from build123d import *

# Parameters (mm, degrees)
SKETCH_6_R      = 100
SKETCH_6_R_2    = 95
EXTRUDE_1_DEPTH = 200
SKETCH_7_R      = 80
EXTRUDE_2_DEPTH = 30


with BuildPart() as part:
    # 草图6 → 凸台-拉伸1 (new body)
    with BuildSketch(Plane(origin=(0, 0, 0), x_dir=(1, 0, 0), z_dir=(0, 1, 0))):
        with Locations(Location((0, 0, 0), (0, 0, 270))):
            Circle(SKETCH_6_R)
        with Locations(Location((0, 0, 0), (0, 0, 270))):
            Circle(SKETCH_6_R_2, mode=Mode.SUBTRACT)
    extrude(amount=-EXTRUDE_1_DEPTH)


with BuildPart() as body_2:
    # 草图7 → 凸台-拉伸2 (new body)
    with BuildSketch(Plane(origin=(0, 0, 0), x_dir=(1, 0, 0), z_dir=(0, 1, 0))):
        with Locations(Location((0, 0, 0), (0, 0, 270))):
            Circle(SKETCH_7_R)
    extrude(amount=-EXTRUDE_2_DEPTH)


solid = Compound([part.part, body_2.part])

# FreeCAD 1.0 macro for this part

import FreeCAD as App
import Part
import Sketcher
from FreeCAD import Vector
Q = App.Units.Quantity

doc = App.newDocument("Part")
params = doc.addObject("Spreadsheet::Sheet", "Params")
for row, (alias, value) in enumerate([
    ("sketch1_diameter", "200 mm"),
    ("sketch1_diameter2", "190 mm"),
    ("pad1_length", "200 mm"),
    ("sketch2_diameter", "160 mm"),
    ("pad2_length", "30 mm"),
], start=1):
    params.set(f"A{row}", alias)
    params.set(f"B{row}", "=" + value)
    params.setAlias(f"B{row}", alias)

body = doc.addObject("PartDesign::Body", "Body")

sketch1 = doc.addObject("Sketcher::SketchObject", "Sketch")
body.addObject(sketch1)
sketch1.AttachmentSupport = (doc.XZ_Plane, [""])
sketch1.MapMode = "FlatFace"
sketch1.addGeometry([
    Part.Circle(Vector(0, 0, 0), Vector(0, 0, 1), 100),
    Part.Circle(Vector(0, 0, 0), Vector(0, 0, 1), 95),
], False)
sketch1.addConstraint([
    Sketcher.Constraint("Coincident", 0, 3, -1, 1),
    Sketcher.Constraint("Coincident", 1, 3, -1, 1),
    Sketcher.Constraint("Diameter", 0, Q("200 mm")),
    Sketcher.Constraint("Diameter", 1, Q("190 mm")),
])
sketch1.setExpression("Constraints[2]", "Params.sketch1_diameter")
sketch1.setExpression("Constraints[3]", "Params.sketch1_diameter2")
pad1 = doc.addObject("PartDesign::Pad", "Pad")
body.addObject(pad1)
pad1.Profile = sketch1
pad1.setExpression("Length", "Params.pad1_length")
body2 = doc.addObject("PartDesign::Body", "Body001")

sketch2 = doc.addObject("Sketcher::SketchObject", "Sketch001")
body2.addObject(sketch2)
sketch2.AttachmentSupport = (doc.getObject("XZ_Plane001"), [""])
sketch2.MapMode = "FlatFace"
sketch2.addGeometry(Part.Circle(Vector(0, 0, 0), Vector(0, 0, 1), 80), False)
sketch2.addConstraint([
    Sketcher.Constraint("Coincident", 0, 3, -1, 1),
    Sketcher.Constraint("Diameter", 0, Q("160 mm")),
])
sketch2.setExpression("Constraints[1]", "Params.sketch2_diameter")
pad2 = doc.addObject("PartDesign::Pad", "Pad001")
body2.addObject(pad2)
pad2.Profile = sketch2
pad2.setExpression("Length", "Params.pad2_length")

doc.recompute()
